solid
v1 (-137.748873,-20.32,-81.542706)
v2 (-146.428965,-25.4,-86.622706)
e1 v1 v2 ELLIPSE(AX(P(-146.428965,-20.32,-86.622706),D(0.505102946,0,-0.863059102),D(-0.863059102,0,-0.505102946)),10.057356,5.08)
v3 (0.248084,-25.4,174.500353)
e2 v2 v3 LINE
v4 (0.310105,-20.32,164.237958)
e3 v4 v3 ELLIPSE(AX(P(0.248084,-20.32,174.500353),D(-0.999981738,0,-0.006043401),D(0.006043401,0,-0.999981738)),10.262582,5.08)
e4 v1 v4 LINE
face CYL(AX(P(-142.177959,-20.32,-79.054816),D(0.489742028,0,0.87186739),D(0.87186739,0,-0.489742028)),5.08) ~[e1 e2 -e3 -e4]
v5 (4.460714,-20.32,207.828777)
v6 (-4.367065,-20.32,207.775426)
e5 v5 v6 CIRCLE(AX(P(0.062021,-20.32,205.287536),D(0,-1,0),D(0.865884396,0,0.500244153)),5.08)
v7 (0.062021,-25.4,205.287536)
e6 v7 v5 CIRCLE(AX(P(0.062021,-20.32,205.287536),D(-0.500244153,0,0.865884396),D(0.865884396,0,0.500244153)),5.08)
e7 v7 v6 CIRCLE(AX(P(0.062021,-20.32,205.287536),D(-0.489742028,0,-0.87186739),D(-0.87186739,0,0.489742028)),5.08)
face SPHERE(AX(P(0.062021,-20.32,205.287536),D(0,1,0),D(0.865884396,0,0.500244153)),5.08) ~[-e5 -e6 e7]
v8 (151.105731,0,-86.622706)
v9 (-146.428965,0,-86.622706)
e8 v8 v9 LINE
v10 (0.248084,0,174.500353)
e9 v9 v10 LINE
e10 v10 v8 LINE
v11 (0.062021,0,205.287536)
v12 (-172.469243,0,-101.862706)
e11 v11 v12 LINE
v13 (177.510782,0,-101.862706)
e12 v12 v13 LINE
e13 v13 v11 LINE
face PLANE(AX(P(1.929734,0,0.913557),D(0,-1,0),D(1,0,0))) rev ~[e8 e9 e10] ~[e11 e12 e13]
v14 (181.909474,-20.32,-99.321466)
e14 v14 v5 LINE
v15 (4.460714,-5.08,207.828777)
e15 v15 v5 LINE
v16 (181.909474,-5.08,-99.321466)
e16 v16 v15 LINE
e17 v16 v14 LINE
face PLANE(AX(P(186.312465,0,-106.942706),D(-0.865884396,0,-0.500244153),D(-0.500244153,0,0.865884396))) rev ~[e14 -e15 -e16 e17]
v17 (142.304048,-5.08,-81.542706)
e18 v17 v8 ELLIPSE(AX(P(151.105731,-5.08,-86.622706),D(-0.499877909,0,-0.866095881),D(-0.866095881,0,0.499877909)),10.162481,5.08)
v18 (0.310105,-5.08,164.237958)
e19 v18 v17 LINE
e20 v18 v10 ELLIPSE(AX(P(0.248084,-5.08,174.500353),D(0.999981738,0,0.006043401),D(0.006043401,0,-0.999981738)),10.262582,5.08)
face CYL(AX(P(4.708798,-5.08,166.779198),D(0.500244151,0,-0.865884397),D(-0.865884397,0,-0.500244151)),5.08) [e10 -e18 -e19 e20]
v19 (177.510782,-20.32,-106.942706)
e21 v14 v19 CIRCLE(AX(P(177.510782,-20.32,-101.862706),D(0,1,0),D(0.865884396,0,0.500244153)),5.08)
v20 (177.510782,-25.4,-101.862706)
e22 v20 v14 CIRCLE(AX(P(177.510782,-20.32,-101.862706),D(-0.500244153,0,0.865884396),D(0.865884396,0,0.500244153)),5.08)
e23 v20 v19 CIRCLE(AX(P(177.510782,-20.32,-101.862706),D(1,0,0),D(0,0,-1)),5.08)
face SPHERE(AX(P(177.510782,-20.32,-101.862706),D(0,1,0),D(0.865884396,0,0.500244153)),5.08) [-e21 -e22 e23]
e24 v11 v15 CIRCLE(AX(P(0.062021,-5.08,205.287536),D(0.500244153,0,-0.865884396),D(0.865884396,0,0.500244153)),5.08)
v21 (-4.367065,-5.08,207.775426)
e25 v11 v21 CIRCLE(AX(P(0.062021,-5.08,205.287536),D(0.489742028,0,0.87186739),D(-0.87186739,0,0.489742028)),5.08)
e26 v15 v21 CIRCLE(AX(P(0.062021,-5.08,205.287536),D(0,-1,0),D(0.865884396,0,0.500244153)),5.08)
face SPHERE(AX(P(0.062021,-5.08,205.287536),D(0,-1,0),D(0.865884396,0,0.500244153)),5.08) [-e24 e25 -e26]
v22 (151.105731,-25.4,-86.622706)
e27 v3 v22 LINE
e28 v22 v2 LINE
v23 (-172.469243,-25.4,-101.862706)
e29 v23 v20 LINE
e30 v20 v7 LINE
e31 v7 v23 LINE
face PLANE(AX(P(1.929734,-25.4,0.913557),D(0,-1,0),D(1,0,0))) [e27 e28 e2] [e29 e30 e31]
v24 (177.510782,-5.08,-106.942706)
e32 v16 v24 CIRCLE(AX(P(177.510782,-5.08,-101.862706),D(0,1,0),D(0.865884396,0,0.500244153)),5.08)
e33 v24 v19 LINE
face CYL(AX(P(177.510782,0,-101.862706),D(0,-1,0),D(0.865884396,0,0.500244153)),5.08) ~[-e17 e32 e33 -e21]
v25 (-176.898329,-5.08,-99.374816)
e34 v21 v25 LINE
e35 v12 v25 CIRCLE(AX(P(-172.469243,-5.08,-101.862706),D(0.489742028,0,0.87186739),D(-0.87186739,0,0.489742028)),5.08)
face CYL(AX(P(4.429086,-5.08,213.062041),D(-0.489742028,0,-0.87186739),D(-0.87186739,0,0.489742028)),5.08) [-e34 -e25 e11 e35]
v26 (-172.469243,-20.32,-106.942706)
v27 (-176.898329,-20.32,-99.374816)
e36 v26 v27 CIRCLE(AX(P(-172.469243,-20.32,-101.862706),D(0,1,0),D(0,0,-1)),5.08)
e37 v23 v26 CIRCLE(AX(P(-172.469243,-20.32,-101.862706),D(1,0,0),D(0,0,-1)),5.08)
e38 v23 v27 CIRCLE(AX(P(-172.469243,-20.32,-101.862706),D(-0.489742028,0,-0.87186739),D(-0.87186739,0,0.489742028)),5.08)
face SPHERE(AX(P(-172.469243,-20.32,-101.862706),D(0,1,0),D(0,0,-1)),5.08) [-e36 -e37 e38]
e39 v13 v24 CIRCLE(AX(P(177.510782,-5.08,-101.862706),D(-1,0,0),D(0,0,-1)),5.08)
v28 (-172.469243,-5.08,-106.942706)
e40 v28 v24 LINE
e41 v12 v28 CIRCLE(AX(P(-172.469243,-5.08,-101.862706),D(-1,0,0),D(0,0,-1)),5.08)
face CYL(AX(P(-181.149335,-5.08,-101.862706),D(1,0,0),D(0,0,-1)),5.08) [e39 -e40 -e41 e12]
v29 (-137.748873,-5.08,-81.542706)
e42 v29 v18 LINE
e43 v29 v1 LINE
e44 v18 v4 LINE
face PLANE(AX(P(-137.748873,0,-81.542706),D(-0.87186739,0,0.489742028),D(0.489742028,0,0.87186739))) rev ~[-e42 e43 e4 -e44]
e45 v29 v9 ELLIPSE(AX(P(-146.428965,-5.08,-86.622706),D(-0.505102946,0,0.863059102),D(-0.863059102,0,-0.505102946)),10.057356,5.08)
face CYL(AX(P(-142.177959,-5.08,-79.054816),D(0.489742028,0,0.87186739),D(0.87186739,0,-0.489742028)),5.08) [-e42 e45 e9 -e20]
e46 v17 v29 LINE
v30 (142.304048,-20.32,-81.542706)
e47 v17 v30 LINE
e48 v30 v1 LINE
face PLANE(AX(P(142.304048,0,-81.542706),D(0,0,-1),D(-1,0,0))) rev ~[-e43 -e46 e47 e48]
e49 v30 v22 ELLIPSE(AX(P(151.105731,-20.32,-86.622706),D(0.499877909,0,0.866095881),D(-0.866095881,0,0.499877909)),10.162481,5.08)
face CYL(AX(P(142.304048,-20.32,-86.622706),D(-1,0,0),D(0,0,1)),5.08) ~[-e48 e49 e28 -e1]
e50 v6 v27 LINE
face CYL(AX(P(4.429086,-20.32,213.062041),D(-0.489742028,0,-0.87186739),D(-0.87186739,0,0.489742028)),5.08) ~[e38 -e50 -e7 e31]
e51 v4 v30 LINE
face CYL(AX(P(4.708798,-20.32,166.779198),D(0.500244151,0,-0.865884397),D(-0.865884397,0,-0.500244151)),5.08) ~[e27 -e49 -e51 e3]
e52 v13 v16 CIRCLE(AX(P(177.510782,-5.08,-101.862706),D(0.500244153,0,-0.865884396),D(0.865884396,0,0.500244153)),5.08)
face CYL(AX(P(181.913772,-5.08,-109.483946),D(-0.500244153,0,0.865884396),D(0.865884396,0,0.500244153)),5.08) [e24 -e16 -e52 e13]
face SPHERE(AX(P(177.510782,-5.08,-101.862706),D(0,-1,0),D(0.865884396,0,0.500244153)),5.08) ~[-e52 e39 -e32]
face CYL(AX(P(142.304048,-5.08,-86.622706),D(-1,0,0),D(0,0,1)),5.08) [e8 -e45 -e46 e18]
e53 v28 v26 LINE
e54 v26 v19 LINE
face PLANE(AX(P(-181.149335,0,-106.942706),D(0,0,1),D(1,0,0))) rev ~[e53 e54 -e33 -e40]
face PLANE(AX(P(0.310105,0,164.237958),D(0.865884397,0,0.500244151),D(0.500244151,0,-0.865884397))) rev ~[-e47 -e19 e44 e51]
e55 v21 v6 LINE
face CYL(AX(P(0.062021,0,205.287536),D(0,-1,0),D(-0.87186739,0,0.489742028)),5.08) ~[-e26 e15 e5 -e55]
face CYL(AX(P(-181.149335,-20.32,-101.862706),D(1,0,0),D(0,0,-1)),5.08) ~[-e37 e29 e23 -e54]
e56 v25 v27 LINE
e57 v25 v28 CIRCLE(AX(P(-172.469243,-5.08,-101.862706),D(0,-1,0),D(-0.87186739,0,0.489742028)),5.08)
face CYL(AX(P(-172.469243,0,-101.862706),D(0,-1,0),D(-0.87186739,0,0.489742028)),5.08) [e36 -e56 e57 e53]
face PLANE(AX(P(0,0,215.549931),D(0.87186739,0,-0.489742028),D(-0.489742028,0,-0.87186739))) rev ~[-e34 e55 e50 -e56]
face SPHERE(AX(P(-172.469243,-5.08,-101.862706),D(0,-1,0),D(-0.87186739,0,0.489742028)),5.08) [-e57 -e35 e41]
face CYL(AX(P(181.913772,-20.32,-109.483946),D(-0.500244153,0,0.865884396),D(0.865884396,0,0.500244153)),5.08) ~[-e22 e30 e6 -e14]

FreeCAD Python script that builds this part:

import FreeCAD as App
import Part
import Sketcher
from FreeCAD import Vector
Q = App.Units.Quantity


def edges_at(feature, points):
    """Names of the edges that pass closest to the given points."""
    edges = feature.Shape.Edges
    near = lambda p: min(range(len(edges)), key=lambda i: edges[i].distToShape(Part.Vertex(*p))[0])
    return sorted({f"Edge{near(p) + 1}" for p in points})

doc = App.newDocument("Part")
body = doc.addObject("PartDesign::Body", "Body")

sketch1 = body.newObject("Sketcher::SketchObject", "Sketch")
sketch1.AttachmentSupport = (doc.getObject("XZ_Plane"), [""])
sketch1.MapMode = "FlatFace"
sketch1.addGeometry([
    Part.LineSegment(Vector(0, 216, 0), Vector(-181, -107, 0)),
    Part.LineSegment(Vector(-181, -107, 0), Vector(186, -107, 0)),
    Part.LineSegment(Vector(186, -107, 0), Vector(0, 216, 0)),
    Part.LineSegment(Vector(142, -82, 0), Vector(-138, -82, 0)),
    Part.LineSegment(Vector(-138, -82, 0), Vector(0, 164, 0)),
    Part.LineSegment(Vector(0, 164, 0), Vector(142, -82, 0)),
], False)
sketch1.addConstraint([
    Sketcher.Constraint("Coincident", 0, 2, 1, 1),
    Sketcher.Constraint("Coincident", 1, 2, 2, 1),
    Sketcher.Constraint("Coincident", 2, 2, 0, 1),
    Sketcher.Constraint("Coincident", 3, 2, 4, 1),
    Sketcher.Constraint("Coincident", 4, 2, 5, 1),
    Sketcher.Constraint("Coincident", 5, 2, 3, 1),
    Sketcher.Constraint("Horizontal", 1),
    Sketcher.Constraint("Horizontal", 3),
    Sketcher.Constraint("PointOnObject", 2, 2, -2),
    Sketcher.Constraint("Parallel", 0, 4),
    Sketcher.Constraint("Parallel", 2, 5),
    Sketcher.Constraint("DistanceY", 0, 2, 3, 2, Q("1 in")),
    Sketcher.Constraint("DistanceX", 1, 1, 1, 2, Q("14.467 in")),
    Sketcher.Constraint("DistanceX", 3, 2, 3, 1, Q("280.052921 mm")),
    Sketcher.Constraint("Distance", 4, Q("281.90143 mm")),
    Sketcher.Constraint("Distance", 5, Q("283.849282 mm")),
    Sketcher.Constraint("DistanceY", -1, 1, 2, 2, Q("215.549931 mm")),
    Sketcher.Constraint("DistanceX", -1, 1, 5, 2, Q("142.304048 mm")),
])
pad1 = body.newObject("PartDesign::Pad", "Pad")
pad1.Profile = sketch1
pad1.Length = Q("1 in")
doc.recompute()

fillet = body.newObject("PartDesign::Fillet", "Fillet")
fillet.Base = (pad1, edges_at(pad1, [
    (93.156, 0, 54.304),
    (-90.575, 0, 54.304),
    (2.582, 0, -106.943),
    (2.278, 0, -81.543),
    (71.307, 0, 41.348),
    (-68.719, 0, 41.348),
    (93.156, -25.4, 54.304),
    (2.582, -25.4, -106.943),
    (-90.575, -25.4, 54.304),
    (2.278, -25.4, -81.543),
    (71.307, -25.4, 41.348),
    (-68.719, -25.4, 41.348),
    (0, -12.7, 215.55),
    (186.312, -12.7, -106.943),
    (-181.149, -12.7, -106.943),
]))
fillet.Radius = Q("0.2 in")

doc.recompute()
